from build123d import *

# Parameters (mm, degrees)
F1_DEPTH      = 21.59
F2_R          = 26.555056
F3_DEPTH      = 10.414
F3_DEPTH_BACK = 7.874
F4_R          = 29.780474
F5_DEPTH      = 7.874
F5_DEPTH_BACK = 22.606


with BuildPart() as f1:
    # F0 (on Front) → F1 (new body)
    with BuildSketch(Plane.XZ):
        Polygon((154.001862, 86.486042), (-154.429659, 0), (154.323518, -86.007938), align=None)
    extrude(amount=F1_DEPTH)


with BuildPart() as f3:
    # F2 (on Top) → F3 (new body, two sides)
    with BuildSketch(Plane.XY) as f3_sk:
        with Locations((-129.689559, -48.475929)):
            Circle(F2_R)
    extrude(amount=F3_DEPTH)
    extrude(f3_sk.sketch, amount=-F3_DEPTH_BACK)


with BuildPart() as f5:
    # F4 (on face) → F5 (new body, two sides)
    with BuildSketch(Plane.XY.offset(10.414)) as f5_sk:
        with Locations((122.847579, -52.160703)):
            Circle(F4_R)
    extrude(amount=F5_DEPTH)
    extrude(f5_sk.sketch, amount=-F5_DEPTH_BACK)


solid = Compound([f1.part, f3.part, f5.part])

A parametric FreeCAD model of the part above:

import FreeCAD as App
import Part
import Sketcher
Q = App.Units.Quantity

doc = App.newDocument("Part")
body = doc.addObject("PartDesign::Body", "Body")

# Sketch on XZ plane
sketch1 = body.newObject("Sketcher::SketchObject", "Sketch")
sketch1.AttachmentSupport = (doc.getObject("XZ_Plane"), [""])
sketch1.MapMode = "FlatFace"
sketch1.addGeometry(Part.LineSegment(App.Vector(154, 86, 0), App.Vector(-154, 0, 0)), False)
sketch1.addGeometry(Part.LineSegment(App.Vector(-154, 0, 0), App.Vector(154, -86, 0)), False)
sketch1.addGeometry(Part.LineSegment(App.Vector(154, -86, 0), App.Vector(154, 86, 0)), False)
sketch1.addConstraint(Sketcher.Constraint("Coincident", 0, 2, 1, 1))
sketch1.addConstraint(Sketcher.Constraint("Coincident", 1, 2, 2, 1))
sketch1.addConstraint(Sketcher.Constraint("Coincident", 2, 2, 0, 1))
sketch1.addConstraint(Sketcher.Constraint("PointOnObject", 0, 2, -1))
sketch1.addConstraint(Sketcher.Constraint("Distance", 1, 320.508798))
sketch1.addConstraint(Sketcher.Constraint("Distance", 2, 172.49428))
sketch1.addConstraint(Sketcher.Constraint("DistanceX", 0, 2, -1, 1, 154.429659))
sketch1.addConstraint(Sketcher.Constraint("DistanceX", -1, 1, 1, 2, 154.323518))
sketch1.addConstraint(Sketcher.Constraint("DistanceX", -1, 1, 2, 2, 154.001862))
pad1 = body.newObject("PartDesign::Pad", "Pad")
pad1.Profile = sketch1
pad1.Length = Q("0.85 in")
body2 = doc.addObject("PartDesign::Body", "Body001")

# Sketch on XY plane
sketch2 = body2.newObject("Sketcher::SketchObject", "Sketch001")
sketch2.AttachmentSupport = (doc.getObject("XY_Plane001"), [""])
sketch2.MapMode = "FlatFace"
sketch2.addGeometry(Part.Circle(App.Vector(-130, -48, 0), App.Vector(0, 0, 1), 27), False)
sketch2.addConstraint(Sketcher.Constraint("Diameter", 0, 53.110112))
sketch2.addConstraint(Sketcher.Constraint("DistanceX", 0, 3, -1, 1, 129.689559))
sketch2.addConstraint(Sketcher.Constraint("DistanceY", 0, 3, -1, 1, 48.475929))
pad2 = body2.newObject("PartDesign::Pad", "Pad001")
pad2.Profile = sketch2
pad2.Type = "TwoLengths"
pad2.Length = Q("0.41 in")
pad2.Length2 = Q("0.31 in")
body3 = doc.addObject("PartDesign::Body", "Body002")

# Sketch on XY plane
sketch3 = body3.newObject("Sketcher::SketchObject", "Sketch002")
sketch3.AttachmentSupport = (doc.getObject("XY_Plane002"), [""])
sketch3.MapMode = "FlatFace"
sketch3.AttachmentOffset = App.Placement(App.Vector(0, 0, 0.41 * 25.4), App.Rotation())
sketch3.addGeometry(Part.Circle(App.Vector(123, -52, 0), App.Vector(0, 0, 1), 30), False)
sketch3.addConstraint(Sketcher.Constraint("Diameter", 0, 59.560948))
sketch3.addConstraint(Sketcher.Constraint("DistanceX", -1, 1, 0, 3, 122.847579))
sketch3.addConstraint(Sketcher.Constraint("DistanceY", 0, 3, -1, 1, 52.160703))
pad3 = body3.newObject("PartDesign::Pad", "Pad002")
pad3.Profile = sketch3
pad3.Type = "TwoLengths"
pad3.Length = Q("0.31 in")
pad3.Length2 = Q("0.89 in")

doc.recompute()
